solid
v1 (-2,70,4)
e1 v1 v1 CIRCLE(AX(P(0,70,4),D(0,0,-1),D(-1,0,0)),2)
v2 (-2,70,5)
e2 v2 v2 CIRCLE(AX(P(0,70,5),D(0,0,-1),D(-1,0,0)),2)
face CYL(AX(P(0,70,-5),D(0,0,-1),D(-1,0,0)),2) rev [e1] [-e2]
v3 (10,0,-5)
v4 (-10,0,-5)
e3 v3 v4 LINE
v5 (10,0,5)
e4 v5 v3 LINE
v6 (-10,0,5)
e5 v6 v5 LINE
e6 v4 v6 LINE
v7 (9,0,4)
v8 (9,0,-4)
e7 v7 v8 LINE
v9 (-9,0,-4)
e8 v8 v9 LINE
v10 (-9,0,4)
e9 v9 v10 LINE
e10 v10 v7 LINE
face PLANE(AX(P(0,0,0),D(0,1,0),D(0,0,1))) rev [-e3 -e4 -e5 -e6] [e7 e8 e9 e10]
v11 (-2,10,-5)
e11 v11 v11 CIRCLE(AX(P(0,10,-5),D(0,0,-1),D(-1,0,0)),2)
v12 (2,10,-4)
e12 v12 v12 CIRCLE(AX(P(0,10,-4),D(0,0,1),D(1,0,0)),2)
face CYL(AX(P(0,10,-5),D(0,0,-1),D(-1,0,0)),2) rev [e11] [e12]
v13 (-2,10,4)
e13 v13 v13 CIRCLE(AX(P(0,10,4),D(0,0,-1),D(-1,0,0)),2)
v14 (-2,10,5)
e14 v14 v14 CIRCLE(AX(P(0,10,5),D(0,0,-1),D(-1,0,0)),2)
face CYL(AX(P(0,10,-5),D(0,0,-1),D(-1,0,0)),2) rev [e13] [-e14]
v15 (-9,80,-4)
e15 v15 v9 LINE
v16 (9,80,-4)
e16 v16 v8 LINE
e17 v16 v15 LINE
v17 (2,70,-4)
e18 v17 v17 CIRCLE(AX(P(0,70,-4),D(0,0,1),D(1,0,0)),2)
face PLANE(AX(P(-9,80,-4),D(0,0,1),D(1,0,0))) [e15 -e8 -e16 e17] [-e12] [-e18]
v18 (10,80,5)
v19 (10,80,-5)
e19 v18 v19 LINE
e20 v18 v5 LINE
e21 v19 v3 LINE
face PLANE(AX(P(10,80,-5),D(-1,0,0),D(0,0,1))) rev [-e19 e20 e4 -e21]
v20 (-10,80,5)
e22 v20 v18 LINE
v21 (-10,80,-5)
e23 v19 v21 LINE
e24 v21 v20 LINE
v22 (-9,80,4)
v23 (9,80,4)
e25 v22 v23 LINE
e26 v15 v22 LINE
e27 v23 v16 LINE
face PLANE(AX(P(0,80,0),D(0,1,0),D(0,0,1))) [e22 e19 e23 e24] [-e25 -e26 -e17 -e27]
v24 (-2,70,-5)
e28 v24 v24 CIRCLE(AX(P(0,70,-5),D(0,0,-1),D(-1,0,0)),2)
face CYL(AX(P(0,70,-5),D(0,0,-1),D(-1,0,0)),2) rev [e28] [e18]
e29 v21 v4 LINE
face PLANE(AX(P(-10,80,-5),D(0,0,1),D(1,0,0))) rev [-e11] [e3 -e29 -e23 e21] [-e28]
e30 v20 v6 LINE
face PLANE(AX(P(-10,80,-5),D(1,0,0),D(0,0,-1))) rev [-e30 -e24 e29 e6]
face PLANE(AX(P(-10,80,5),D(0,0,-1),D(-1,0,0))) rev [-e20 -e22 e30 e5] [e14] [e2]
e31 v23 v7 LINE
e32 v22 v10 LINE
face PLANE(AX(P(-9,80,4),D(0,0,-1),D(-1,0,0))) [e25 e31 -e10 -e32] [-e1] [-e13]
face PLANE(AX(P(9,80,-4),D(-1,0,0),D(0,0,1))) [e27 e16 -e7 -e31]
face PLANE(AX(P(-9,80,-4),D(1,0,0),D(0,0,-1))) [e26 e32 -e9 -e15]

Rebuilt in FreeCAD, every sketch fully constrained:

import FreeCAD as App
import Part
import Sketcher

V = App.Vector


def add_polygon(sketch, points):
    """Adds a closed chain of lines whose ends are joined by coincident constraints."""
    first, n = sketch.GeometryCount, len(points)
    for a, b in zip(points, points[1:] + points[:1]):
        sketch.addGeometry(Part.LineSegment(App.Vector(*a, 0), App.Vector(*b, 0)), False)
    for i in range(n):
        sketch.addConstraint(Sketcher.Constraint("Coincident", first + i, 2, first + (i + 1) % n, 1))

doc = App.newDocument("Part")
body = doc.addObject("PartDesign::Body", "Body")

# Sketch on XZ plane
sketch1 = body.newObject("Sketcher::SketchObject", "Sketch")
sketch1.AttachmentSupport = (doc.getObject("XZ_Plane"), [""])
sketch1.MapMode = "FlatFace"
add_polygon(sketch1, [(-10, -5), (-10, 5), (10, 5), (10, -5)])  # lines 0-3
add_polygon(sketch1, [(9, 4), (-9, 4), (-9, -4), (9, -4)])  # lines 4-7
sketch1.addConstraint(Sketcher.Constraint("Vertical", 0))
sketch1.addConstraint(Sketcher.Constraint("Horizontal", 1))
sketch1.addConstraint(Sketcher.Constraint("Vertical", 2))
sketch1.addConstraint(Sketcher.Constraint("Horizontal", 3))
sketch1.addConstraint(Sketcher.Constraint("Horizontal", 4))
sketch1.addConstraint(Sketcher.Constraint("Vertical", 5))
sketch1.addConstraint(Sketcher.Constraint("Horizontal", 6))
sketch1.addConstraint(Sketcher.Constraint("Vertical", 7))
sketch1.addConstraint(Sketcher.Constraint("Symmetric", 0, 2, 2, 2, -1, 1))
sketch1.addConstraint(Sketcher.Constraint("Symmetric", 4, 2, 6, 2, -1, 1))
sketch1.addConstraint(Sketcher.Constraint("DistanceX", 1, 1, 1, 2, 20.0))
sketch1.addConstraint(Sketcher.Constraint("DistanceX", 4, 2, 4, 1, 18.0))
sketch1.addConstraint(Sketcher.Constraint("DistanceY", 0, 1, 0, 2, 10.0))
sketch1.addConstraint(Sketcher.Constraint("DistanceY", 5, 2, 5, 1, 8.0))
pad1 = body.newObject("PartDesign::Pad", "Pad")
pad1.Profile = sketch1
pad1.Length = 80
pad1.Reversed = True

# Sketch on XY plane
sketch2 = body.newObject("Sketcher::SketchObject", "Sketch001")
sketch2.AttachmentSupport = (doc.getObject("XY_Plane"), [""])
sketch2.MapMode = "FlatFace"
sketch2.AttachmentOffset = App.Placement(V(0, 0, -5), App.Rotation())
sketch2.addGeometry(Part.Circle(V(0, 10, 0), V(0, 0, 1), 2), False)
sketch2.addGeometry(Part.Circle(V(0, 70, 0), V(0, 0, 1), 2), False)
sketch2.addConstraint(Sketcher.Constraint("Equal", 0, 1))
sketch2.addConstraint(Sketcher.Constraint("PointOnObject", 0, 3, -2))
sketch2.addConstraint(Sketcher.Constraint("PointOnObject", 1, 3, -2))
sketch2.addConstraint(Sketcher.Constraint("Diameter", 0, 4.0))
sketch2.addConstraint(Sketcher.Constraint("DistanceY", -1, 1, 0, 3, 10.0))
sketch2.addConstraint(Sketcher.Constraint("DistanceY", -1, 1, 1, 3, 70.0))
doc.recompute()
hole = body.newObject("PartDesign::Hole", "Hole")
hole.Profile = sketch2
hole.ThreadType = "None"
hole.Diameter = 4
hole.DepthType = "ThroughAll"
hole.Reversed = True

doc.recompute()
